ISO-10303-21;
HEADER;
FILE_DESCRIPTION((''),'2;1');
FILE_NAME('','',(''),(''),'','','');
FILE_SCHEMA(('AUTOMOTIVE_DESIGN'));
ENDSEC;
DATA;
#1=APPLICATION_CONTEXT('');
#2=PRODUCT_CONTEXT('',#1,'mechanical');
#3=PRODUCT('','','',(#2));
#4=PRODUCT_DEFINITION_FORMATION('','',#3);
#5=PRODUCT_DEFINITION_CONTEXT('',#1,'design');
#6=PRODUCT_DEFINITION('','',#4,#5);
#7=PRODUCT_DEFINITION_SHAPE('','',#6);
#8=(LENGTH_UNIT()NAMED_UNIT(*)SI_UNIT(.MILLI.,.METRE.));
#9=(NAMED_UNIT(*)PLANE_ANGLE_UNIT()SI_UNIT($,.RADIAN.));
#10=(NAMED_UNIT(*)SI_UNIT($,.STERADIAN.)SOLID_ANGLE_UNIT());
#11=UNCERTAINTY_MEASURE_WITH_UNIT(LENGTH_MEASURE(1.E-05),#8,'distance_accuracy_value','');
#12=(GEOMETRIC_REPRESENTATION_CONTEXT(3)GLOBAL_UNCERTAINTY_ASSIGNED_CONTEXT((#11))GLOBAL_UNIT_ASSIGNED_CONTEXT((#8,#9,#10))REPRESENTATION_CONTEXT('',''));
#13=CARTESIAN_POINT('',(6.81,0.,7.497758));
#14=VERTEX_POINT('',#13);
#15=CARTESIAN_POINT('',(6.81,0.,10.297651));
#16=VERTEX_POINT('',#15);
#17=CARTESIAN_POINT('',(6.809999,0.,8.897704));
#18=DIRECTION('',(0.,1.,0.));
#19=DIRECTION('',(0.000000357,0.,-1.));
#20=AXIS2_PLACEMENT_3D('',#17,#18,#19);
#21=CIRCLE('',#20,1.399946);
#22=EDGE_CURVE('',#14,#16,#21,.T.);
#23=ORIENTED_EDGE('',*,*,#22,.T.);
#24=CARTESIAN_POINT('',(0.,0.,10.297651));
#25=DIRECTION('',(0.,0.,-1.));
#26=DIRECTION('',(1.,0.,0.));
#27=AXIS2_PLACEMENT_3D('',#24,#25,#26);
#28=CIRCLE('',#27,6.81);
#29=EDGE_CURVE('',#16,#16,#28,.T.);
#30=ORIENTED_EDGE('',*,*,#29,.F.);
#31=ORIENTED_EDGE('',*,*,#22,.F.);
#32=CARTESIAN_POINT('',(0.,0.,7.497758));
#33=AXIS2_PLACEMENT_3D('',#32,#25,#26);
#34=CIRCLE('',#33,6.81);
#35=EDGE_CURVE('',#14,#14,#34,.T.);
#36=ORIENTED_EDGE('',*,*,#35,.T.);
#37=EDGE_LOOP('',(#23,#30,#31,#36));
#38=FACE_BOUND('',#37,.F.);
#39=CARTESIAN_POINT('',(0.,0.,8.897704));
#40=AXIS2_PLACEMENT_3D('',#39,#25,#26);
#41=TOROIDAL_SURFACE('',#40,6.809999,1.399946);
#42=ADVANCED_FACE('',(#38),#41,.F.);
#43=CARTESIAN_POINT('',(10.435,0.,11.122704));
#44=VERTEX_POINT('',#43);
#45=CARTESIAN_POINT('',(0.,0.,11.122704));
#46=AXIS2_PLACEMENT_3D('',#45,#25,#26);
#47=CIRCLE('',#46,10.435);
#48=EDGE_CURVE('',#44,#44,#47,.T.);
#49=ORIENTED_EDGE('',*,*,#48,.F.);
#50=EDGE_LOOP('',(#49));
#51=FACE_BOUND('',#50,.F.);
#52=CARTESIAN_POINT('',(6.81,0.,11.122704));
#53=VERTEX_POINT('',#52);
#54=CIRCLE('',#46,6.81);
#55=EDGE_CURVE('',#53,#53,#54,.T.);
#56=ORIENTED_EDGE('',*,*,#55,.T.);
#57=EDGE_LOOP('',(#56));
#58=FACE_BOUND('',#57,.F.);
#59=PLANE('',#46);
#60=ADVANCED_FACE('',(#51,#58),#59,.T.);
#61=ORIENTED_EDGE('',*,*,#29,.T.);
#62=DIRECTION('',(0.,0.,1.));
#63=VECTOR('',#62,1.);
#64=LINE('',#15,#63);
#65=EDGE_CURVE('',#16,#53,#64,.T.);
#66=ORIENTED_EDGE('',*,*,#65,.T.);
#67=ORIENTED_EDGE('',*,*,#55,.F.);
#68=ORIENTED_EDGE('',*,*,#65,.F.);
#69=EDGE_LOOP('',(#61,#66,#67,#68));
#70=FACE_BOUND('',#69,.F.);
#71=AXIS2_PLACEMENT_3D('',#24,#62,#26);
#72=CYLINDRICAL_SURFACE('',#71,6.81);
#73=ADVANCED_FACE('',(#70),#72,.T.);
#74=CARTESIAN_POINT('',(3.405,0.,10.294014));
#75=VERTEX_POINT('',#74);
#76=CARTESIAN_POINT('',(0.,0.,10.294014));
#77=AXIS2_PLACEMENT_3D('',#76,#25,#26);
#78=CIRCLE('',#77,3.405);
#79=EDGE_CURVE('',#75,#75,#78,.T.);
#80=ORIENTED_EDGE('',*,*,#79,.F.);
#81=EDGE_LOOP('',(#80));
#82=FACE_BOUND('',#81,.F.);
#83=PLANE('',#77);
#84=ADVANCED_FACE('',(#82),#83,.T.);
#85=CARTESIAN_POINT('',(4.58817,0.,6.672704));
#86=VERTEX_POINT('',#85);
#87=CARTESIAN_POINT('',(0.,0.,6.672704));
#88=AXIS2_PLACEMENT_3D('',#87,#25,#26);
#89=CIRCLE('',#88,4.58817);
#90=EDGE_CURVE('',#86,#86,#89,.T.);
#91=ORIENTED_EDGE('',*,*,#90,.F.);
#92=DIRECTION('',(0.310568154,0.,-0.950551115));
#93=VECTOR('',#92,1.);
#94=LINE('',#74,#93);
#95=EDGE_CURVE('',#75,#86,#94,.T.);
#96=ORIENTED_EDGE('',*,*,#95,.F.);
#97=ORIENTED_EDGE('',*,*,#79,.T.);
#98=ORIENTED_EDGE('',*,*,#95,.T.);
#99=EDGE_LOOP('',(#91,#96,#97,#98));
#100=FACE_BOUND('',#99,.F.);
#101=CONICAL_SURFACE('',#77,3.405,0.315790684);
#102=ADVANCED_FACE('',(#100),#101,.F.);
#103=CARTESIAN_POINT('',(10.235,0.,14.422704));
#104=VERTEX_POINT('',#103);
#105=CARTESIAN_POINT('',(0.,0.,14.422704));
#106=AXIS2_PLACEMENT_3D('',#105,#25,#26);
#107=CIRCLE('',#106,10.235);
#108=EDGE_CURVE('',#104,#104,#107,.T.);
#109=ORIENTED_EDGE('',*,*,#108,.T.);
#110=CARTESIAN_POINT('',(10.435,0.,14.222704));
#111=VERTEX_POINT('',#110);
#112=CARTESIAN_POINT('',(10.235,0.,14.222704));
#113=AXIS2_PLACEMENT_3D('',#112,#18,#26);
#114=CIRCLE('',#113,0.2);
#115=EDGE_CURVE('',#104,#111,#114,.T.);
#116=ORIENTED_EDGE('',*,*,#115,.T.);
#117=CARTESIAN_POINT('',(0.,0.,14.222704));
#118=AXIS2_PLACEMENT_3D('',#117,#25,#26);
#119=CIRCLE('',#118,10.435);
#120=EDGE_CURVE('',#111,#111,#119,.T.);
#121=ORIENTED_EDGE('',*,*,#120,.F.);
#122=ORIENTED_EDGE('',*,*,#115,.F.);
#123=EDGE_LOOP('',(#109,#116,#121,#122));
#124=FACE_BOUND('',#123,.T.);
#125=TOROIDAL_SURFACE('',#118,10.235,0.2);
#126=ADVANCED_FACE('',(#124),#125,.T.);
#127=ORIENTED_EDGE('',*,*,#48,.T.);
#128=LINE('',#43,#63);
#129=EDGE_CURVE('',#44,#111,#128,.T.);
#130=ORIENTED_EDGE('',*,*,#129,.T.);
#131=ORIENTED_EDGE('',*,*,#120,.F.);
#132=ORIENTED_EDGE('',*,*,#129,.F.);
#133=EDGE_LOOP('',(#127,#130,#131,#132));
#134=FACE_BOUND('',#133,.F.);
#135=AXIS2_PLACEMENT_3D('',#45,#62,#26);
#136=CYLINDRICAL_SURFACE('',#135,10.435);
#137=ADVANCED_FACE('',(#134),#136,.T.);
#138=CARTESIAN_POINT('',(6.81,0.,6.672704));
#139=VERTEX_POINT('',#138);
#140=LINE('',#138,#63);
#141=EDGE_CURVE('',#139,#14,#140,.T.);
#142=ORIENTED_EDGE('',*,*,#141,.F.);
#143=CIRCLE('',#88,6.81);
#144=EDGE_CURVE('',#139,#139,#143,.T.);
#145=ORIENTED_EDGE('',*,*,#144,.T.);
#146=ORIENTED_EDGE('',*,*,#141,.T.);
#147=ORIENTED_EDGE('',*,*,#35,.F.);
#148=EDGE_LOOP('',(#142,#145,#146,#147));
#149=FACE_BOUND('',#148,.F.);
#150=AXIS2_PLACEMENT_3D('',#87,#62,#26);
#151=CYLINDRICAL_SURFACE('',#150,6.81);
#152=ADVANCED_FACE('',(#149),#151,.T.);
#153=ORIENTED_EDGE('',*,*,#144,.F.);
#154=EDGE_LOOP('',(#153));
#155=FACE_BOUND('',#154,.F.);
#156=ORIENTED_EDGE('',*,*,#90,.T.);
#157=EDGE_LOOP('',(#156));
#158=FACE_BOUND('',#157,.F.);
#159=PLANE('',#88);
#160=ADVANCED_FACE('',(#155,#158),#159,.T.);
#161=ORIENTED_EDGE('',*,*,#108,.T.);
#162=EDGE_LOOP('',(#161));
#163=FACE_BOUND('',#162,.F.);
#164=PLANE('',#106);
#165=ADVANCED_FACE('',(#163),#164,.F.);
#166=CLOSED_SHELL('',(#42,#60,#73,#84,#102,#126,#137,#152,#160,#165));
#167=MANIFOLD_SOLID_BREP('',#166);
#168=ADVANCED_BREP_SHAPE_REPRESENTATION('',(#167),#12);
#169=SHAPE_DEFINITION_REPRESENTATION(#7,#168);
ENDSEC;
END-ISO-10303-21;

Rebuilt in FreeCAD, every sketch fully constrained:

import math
import FreeCAD as App
import Part
import Sketcher
from FreeCAD import Vector
Q = App.Units.Quantity


def edges_at(feature, points):
    """Names of the edges that pass closest to the given points."""
    edges = feature.Shape.Edges
    near = lambda p: min(range(len(edges)), key=lambda i: edges[i].distToShape(Part.Vertex(*p))[0])
    return sorted({f"Edge{near(p) + 1}" for p in points})

doc = App.newDocument("Part")
body = doc.addObject("PartDesign::Body", "Body")

sketch1 = doc.addObject("Sketcher::SketchObject", "Sketch")
body.addObject(sketch1)
sketch1.AttachmentSupport = (doc.XZ_Plane, [""])
sketch1.MapMode = "FlatFace"
sketch1.addGeometry([
    Part.LineSegment(Vector(10.4, 14.4, 0), Vector(0, 14.4, 0)),
    Part.LineSegment(Vector(0, 14.4, 0), Vector(0, 10.3, 0)),
    Part.LineSegment(Vector(0, 10.3, 0), Vector(3.4, 10.3, 0)),
    Part.LineSegment(Vector(3.4, 10.3, 0), Vector(4.6, 6.7, 0)),
    Part.LineSegment(Vector(4.6, 6.7, 0), Vector(6.8, 6.7, 0)),
    Part.LineSegment(Vector(6.8, 6.7, 0), Vector(6.8, 7.5, 0)),
    Part.ArcOfCircle(Part.Circle(Vector(6.8, 8.9, 0), Vector(0, 0, 1), 1.4), math.radians(90), math.radians(270)),
    Part.LineSegment(Vector(6.8, 10.3, 0), Vector(6.8, 11.1, 0)),
    Part.LineSegment(Vector(6.8, 11.1, 0), Vector(10.4, 11.1, 0)),
    Part.LineSegment(Vector(10.4, 11.1, 0), Vector(10.4, 14.4, 0)),
], False)
sketch1.addConstraint([
    Sketcher.Constraint("Coincident", 0, 2, 1, 1),
    Sketcher.Constraint("Coincident", 1, 2, 2, 1),
    Sketcher.Constraint("Coincident", 2, 2, 3, 1),
    Sketcher.Constraint("Coincident", 3, 2, 4, 1),
    Sketcher.Constraint("Coincident", 4, 2, 5, 1),
    Sketcher.Constraint("Coincident", 5, 2, 6, 2),
    Sketcher.Constraint("Coincident", 6, 1, 7, 1),
    Sketcher.Constraint("Coincident", 7, 2, 8, 1),
    Sketcher.Constraint("Coincident", 8, 2, 9, 1),
    Sketcher.Constraint("Coincident", 9, 2, 0, 1),
    Sketcher.Constraint("Horizontal", 0),
    Sketcher.Constraint("Vertical", 1),
    Sketcher.Constraint("Horizontal", 2),
    Sketcher.Constraint("Horizontal", 4),
    Sketcher.Constraint("Vertical", 5),
    Sketcher.Constraint("Vertical", 7),
    Sketcher.Constraint("Horizontal", 8),
    Sketcher.Constraint("Vertical", 9),
    Sketcher.Constraint("PointOnObject", 0, 2, -2),
    Sketcher.Constraint("Vertical", 6, 3, 4, 2),
    Sketcher.Constraint("Vertical", 5, 2, 6, 1),
    Sketcher.Constraint("Equal", 5, 7),
    Sketcher.Constraint("DistanceY", 9, 1, 9, 2, Q("3.3 mm")),
    Sketcher.Constraint("DistanceX", 0, 2, 0, 1, Q("10.435 mm")),
    Sketcher.Constraint("DistanceX", 2, 1, 2, 2, Q("3.405 mm")),
    Sketcher.Constraint("DistanceX", 8, 1, 8, 2, Q("3.625 mm")),
    Sketcher.Constraint("DistanceY", 3, 2, 0, 2, Q("7.75 mm")),
    Sketcher.Constraint("Radius", 6, Q("1.399946 mm")),
    Sketcher.Constraint("DistanceX", 4, 1, 4, 2, Q("2.22183 mm")),
    Sketcher.Constraint("DistanceY", 1, 2, 1, 1, Q("4.12869 mm")),
    Sketcher.Constraint("DistanceY", -1, 1, 6, 1, Q("10.297651 mm")),
])
revolution = doc.addObject("PartDesign::Revolution", "Revolution")
body.addObject(revolution)
revolution.Profile = sketch1
revolution.ReferenceAxis = (sketch1, ["V_Axis"])
revolution.Angle = 360
doc.recompute()

fillet = doc.addObject("PartDesign::Fillet", "Fillet")
body.addObject(fillet)
fillet.Base = (revolution, edges_at(revolution, [(-10.435, 0, 14.423)]))
fillet.Radius = 0.2

doc.recompute()
